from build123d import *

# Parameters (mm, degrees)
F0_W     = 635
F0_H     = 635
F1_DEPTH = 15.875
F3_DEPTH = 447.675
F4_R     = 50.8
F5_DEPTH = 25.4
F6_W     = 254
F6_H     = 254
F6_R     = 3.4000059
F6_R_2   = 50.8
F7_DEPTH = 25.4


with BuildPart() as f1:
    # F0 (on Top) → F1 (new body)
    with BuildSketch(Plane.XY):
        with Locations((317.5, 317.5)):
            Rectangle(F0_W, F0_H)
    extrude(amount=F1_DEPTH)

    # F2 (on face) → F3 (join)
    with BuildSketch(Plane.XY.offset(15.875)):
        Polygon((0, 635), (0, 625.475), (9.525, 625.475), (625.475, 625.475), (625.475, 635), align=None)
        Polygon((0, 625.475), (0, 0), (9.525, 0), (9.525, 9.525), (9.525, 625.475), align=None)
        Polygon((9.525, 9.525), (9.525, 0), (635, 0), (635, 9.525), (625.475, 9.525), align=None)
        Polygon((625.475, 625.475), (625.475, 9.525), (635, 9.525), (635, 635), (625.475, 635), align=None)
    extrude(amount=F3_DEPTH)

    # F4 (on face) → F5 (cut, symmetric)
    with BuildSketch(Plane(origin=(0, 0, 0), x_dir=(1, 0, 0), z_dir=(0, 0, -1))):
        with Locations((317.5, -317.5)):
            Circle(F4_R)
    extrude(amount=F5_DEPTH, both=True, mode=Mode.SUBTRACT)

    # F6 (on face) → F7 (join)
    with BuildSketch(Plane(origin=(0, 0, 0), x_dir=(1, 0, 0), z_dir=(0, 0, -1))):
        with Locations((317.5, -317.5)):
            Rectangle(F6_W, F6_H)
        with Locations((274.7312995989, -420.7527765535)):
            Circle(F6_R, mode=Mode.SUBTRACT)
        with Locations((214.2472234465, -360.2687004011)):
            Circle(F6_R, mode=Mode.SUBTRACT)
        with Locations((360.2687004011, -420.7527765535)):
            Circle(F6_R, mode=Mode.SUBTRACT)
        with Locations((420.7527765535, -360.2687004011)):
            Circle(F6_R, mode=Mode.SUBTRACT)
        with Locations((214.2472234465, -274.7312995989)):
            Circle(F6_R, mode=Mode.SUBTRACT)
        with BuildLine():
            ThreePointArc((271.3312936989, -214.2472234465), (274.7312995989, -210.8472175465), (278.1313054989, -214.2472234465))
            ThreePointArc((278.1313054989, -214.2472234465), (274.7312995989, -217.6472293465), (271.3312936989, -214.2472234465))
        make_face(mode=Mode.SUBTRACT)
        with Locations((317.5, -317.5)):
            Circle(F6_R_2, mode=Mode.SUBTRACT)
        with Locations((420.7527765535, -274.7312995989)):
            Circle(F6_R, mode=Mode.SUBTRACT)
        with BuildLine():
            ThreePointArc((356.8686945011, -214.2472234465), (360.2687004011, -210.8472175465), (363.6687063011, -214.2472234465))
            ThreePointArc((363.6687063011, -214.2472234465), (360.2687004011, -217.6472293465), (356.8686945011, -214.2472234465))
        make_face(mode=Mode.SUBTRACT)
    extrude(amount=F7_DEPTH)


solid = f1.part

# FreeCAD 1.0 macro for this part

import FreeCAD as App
import Part
import Sketcher
Q = App.Units.Quantity


def add_polygon(sketch, points):
    """Adds a closed chain of lines whose ends are joined by coincident constraints."""
    first, n = sketch.GeometryCount, len(points)
    for a, b in zip(points, points[1:] + points[:1]):
        sketch.addGeometry(Part.LineSegment(App.Vector(*a, 0), App.Vector(*b, 0)), False)
    for i in range(n):
        sketch.addConstraint(Sketcher.Constraint("Coincident", first + i, 2, first + (i + 1) % n, 1))

doc = App.newDocument("Part")
params = doc.addObject("Spreadsheet::Sheet", "Params")
for row, (alias, value) in enumerate([
    ("sketch1_width", "25 in"),
    ("pad1_length", "0.625 in"),
    ("sketch2_width", "25 in"),
    ("sketch2_width2", "24.25 in"),
    ("pad2_length", "17.625 in"),
    ("sketch3_diameter", "4 in"),
    ("pocket1_length", "2 in"),
    ("sketch4_diameter", "4 in"),
    ("sketch4_width", "10 in"),
    ("pad3_length", "1 in"),
], start=1):
    params.set(f"A{row}", alias)
    params.set(f"B{row}", "=" + value)
    params.setAlias(f"B{row}", alias)

body = doc.addObject("PartDesign::Body", "Body")

# Sketch on XY plane
sketch1 = body.newObject("Sketcher::SketchObject", "Sketch")
sketch1.AttachmentSupport = (doc.getObject("XY_Plane"), [""])
sketch1.MapMode = "FlatFace"
add_polygon(sketch1, [(0, 635), (0, 0), (635, 0), (635, 635)])  # lines 0-3
sketch1.addConstraint(Sketcher.Constraint("Vertical", 0))
sketch1.addConstraint(Sketcher.Constraint("Horizontal", 1))
sketch1.addConstraint(Sketcher.Constraint("Vertical", 2))
sketch1.addConstraint(Sketcher.Constraint("Horizontal", 3))
sketch1.addConstraint(Sketcher.Constraint("Coincident", 0, 2, -1, 1))
sketch1.addConstraint(Sketcher.Constraint("Equal", 3, 0))
sketch1.addConstraint(Sketcher.Constraint("DistanceX", 1, 1, 1, 2, Q("25 in")))
sketch1.setExpression("Constraints[10]", "Params.sketch1_width")
pad1 = body.newObject("PartDesign::Pad", "Pad")
pad1.Profile = sketch1
pad1.setExpression("Length", "Params.pad1_length")

# Sketch on XY plane
sketch2 = body.newObject("Sketcher::SketchObject", "Sketch001")
sketch2.AttachmentSupport = (doc.getObject("XY_Plane"), [""])
sketch2.MapMode = "FlatFace"
sketch2.AttachmentOffset = App.Placement(App.Vector(0, 0, 0.625 * 25.4), App.Rotation())
add_polygon(sketch2, [(0, 635), (0, 0), (635, 0), (635, 635)])  # lines 0-3
add_polygon(sketch2, [(625, 10), (10, 10), (10, 625), (625, 625)])  # lines 4-7
sketch2.addConstraint(Sketcher.Constraint("Vertical", 0))
sketch2.addConstraint(Sketcher.Constraint("Horizontal", 1))
sketch2.addConstraint(Sketcher.Constraint("Vertical", 2))
sketch2.addConstraint(Sketcher.Constraint("Horizontal", 3))
sketch2.addConstraint(Sketcher.Constraint("Horizontal", 4))
sketch2.addConstraint(Sketcher.Constraint("Vertical", 5))
sketch2.addConstraint(Sketcher.Constraint("Horizontal", 6))
sketch2.addConstraint(Sketcher.Constraint("Vertical", 7))
sketch2.addConstraint(Sketcher.Constraint("Coincident", 0, 2, -1, 1))
sketch2.addConstraint(Sketcher.Constraint("Equal", 3, 0))
sketch2.addConstraint(Sketcher.Constraint("Equal", 6, 5))
sketch2.addConstraint(Sketcher.Constraint("DistanceX", 1, 1, 1, 2, Q("25 in")))
sketch2.addConstraint(Sketcher.Constraint("DistanceX", 4, 2, 4, 1, Q("24.25 in")))
sketch2.addConstraint(Sketcher.Constraint("DistanceX", -1, 1, 4, 2, Q("0.375 in")))
sketch2.addConstraint(Sketcher.Constraint("DistanceY", -1, 1, 4, 2, Q("0.375 in")))
sketch2.setExpression("Constraints[19]", "Params.sketch2_width")
sketch2.setExpression("Constraints[20]", "Params.sketch2_width2")
pad2 = body.newObject("PartDesign::Pad", "Pad001")
pad2.Profile = sketch2
pad2.setExpression("Length", "Params.pad2_length")

# Sketch on XY plane
sketch3 = body.newObject("Sketcher::SketchObject", "Sketch002")
sketch3.AttachmentSupport = (doc.getObject("XY_Plane"), [""])
sketch3.MapMode = "FlatFace"
sketch3.addGeometry(Part.Circle(App.Vector(318, 318, 0), App.Vector(0, 0, 1), 51), False)
sketch3.addConstraint(Sketcher.Constraint("Diameter", 0, Q("4 in")))
sketch3.addConstraint(Sketcher.Constraint("DistanceX", -1, 1, 0, 3, Q("12.5 in")))
sketch3.addConstraint(Sketcher.Constraint("DistanceY", -1, 1, 0, 3, Q("12.5 in")))
sketch3.setExpression("Constraints[0]", "Params.sketch3_diameter")
pocket1 = body.newObject("PartDesign::Pocket", "Pocket")
pocket1.Profile = sketch3
pocket1.setExpression("Length", "Params.pocket1_length")
pocket1.Midplane = True

# Sketch on XY plane
sketch4 = body.newObject("Sketcher::SketchObject", "Sketch003")
sketch4.AttachmentSupport = (doc.getObject("XY_Plane"), [""])
sketch4.MapMode = "FlatFace"
add_polygon(sketch4, [(190.5, 190.5), (190.5, 444.5), (444.5, 444.5), (444.5, 190.5)])  # lines 0-3
sketch4.addGeometry(Part.Circle(App.Vector(274.7, 420.8, 0), App.Vector(0, 0, 1), 3.4), False)  # 4
sketch4.addGeometry(Part.Circle(App.Vector(214.2, 360.3, 0), App.Vector(0, 0, 1), 3.4), False)  # 5
sketch4.addGeometry(Part.Circle(App.Vector(360.3, 420.8, 0), App.Vector(0, 0, 1), 3.4), False)  # 6
sketch4.addGeometry(Part.Circle(App.Vector(317.5, 317.5, 0), App.Vector(0, 0, 1), 50.8), False)  # 7
sketch4.addGeometry(Part.Circle(App.Vector(420.8, 360.3, 0), App.Vector(0, 0, 1), 3.4), False)  # 8
sketch4.addGeometry(Part.Circle(App.Vector(214.2, 274.7, 0), App.Vector(0, 0, 1), 3.4), False)  # 9
sketch4.addGeometry(Part.Circle(App.Vector(274.7, 214.2, 0), App.Vector(0, 0, 1), 3.4), False)  # 10
sketch4.addGeometry(Part.Circle(App.Vector(420.8, 274.7, 0), App.Vector(0, 0, 1), 3.4), False)  # 11
sketch4.addGeometry(Part.Circle(App.Vector(360.3, 214.2, 0), App.Vector(0, 0, 1), 3.4), False)  # 12
sketch4.addConstraint(Sketcher.Constraint("Vertical", 0))
sketch4.addConstraint(Sketcher.Constraint("Horizontal", 1))
sketch4.addConstraint(Sketcher.Constraint("Vertical", 2))
sketch4.addConstraint(Sketcher.Constraint("Horizontal", 3))
sketch4.addConstraint(Sketcher.Constraint("Equal", 4, 5))
sketch4.addConstraint(Sketcher.Constraint("Equal", 5, 6))
sketch4.addConstraint(Sketcher.Constraint("Equal", 6, 8))
sketch4.addConstraint(Sketcher.Constraint("Equal", 8, 9))
sketch4.addConstraint(Sketcher.Constraint("Equal", 9, 10))
sketch4.addConstraint(Sketcher.Constraint("Equal", 10, 11))
sketch4.addConstraint(Sketcher.Constraint("Equal", 11, 12))
sketch4.addConstraint(Sketcher.Constraint("Horizontal", 4, 3, 6, 3))
sketch4.addConstraint(Sketcher.Constraint("Horizontal", 5, 3, 8, 3))
sketch4.addConstraint(Sketcher.Constraint("Horizontal", 9, 3, 11, 3))
sketch4.addConstraint(Sketcher.Constraint("Horizontal", 10, 3, 12, 3))
sketch4.addConstraint(Sketcher.Constraint("Vertical", 5, 3, 9, 3))
sketch4.addConstraint(Sketcher.Constraint("Vertical", 4, 3, 10, 3))
sketch4.addConstraint(Sketcher.Constraint("Vertical", 8, 3, 11, 3))
sketch4.addConstraint(Sketcher.Constraint("Vertical", 6, 3, 12, 3))
sketch4.addConstraint(Sketcher.Constraint("Equal", 3, 0))
sketch4.addConstraint(Sketcher.Constraint("Diameter", 7, Q("4 in")))
sketch4.addConstraint(Sketcher.Constraint("DistanceX", 1, 1, 1, 2, Q("10 in")))
sketch4.addConstraint(Sketcher.Constraint("DistanceX", 0, 2, 7, 3, Q("5 in")))
sketch4.addConstraint(Sketcher.Constraint("DistanceY", 7, 3, 0, 2, Q("5 in")))
sketch4.addConstraint(Sketcher.Constraint("DistanceX", -1, 1, 7, 3, Q("12.5 in")))
sketch4.addConstraint(Sketcher.Constraint("DistanceY", -1, 1, 7, 3, Q("12.5 in")))
sketch4.addConstraint(Sketcher.Constraint("Diameter", 4, Q("6.800012 mm")))
sketch4.addConstraint(Sketcher.Constraint("DistanceX", -1, 1, 4, 3, Q("274.7313 mm")))
sketch4.addConstraint(Sketcher.Constraint("DistanceY", -1, 1, 5, 3, Q("360.2687 mm")))
sketch4.addConstraint(Sketcher.Constraint("DistanceX", -1, 1, 6, 3, Q("360.2687 mm")))
sketch4.addConstraint(Sketcher.Constraint("DistanceY", -1, 1, 9, 3, Q("274.7313 mm")))
sketch4.addConstraint(Sketcher.Constraint("DistanceY", -1, 1, 4, 3, Q("420.752777 mm")))
sketch4.addConstraint(Sketcher.Constraint("DistanceX", -1, 1, 5, 3, Q("214.247223 mm")))
sketch4.addConstraint(Sketcher.Constraint("DistanceX", -1, 1, 8, 3, Q("420.752777 mm")))
sketch4.addConstraint(Sketcher.Constraint("DistanceY", -1, 1, 10, 3, Q("214.247223 mm")))
sketch4.setExpression("Constraints[24]", "Params.sketch4_diameter")
sketch4.setExpression("Constraints[25]", "Params.sketch4_width")
pad3 = body.newObject("PartDesign::Pad", "Pad002")
pad3.Profile = sketch4
pad3.setExpression("Length", "Params.pad3_length")
pad3.Reversed = True

doc.recompute()
